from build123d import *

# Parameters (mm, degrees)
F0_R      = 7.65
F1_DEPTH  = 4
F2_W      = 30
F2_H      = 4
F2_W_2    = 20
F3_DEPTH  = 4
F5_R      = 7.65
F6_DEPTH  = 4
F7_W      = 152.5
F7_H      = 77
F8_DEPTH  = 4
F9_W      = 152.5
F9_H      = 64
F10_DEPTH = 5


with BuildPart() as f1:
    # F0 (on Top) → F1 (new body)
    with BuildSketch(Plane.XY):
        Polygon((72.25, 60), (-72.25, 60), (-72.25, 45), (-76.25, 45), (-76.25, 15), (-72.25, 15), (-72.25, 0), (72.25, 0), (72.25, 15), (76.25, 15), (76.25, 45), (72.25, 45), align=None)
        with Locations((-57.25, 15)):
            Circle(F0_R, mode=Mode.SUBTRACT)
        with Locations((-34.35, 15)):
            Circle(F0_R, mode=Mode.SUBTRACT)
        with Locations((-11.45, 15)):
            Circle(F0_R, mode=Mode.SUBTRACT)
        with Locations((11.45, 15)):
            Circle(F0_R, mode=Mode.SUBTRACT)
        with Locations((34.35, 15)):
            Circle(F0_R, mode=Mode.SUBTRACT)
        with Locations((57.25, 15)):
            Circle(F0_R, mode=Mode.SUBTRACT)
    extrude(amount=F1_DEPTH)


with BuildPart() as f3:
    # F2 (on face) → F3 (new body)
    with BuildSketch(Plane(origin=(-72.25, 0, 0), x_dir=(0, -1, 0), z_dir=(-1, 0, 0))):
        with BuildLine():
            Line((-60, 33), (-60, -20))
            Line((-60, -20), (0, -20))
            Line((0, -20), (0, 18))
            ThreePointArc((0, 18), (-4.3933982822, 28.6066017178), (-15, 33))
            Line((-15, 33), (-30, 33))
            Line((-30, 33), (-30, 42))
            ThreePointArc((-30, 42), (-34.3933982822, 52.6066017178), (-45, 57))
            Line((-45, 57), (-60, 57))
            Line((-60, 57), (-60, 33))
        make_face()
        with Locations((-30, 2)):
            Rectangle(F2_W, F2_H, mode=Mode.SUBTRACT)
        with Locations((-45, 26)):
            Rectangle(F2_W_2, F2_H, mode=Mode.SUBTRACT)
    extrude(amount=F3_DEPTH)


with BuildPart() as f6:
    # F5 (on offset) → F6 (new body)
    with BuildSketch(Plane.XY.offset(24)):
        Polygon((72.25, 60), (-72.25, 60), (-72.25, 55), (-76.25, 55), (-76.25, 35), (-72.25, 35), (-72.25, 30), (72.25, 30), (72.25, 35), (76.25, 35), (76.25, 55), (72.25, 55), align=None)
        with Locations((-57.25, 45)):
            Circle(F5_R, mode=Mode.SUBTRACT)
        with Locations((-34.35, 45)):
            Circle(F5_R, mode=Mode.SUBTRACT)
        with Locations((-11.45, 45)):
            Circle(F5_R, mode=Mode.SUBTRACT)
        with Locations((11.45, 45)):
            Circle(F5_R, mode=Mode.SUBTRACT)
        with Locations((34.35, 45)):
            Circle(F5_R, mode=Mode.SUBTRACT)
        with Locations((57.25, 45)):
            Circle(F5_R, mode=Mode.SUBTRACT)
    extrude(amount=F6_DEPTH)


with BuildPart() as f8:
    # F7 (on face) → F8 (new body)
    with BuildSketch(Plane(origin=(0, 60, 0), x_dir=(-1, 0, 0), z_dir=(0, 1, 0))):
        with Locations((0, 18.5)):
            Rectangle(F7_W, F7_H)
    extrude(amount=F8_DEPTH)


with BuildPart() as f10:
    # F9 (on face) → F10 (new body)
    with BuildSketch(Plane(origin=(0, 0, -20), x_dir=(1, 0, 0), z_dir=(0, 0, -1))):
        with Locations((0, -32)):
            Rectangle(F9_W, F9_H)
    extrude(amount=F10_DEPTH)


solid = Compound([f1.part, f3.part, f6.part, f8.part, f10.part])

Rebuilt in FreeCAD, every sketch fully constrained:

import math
import FreeCAD as App
import Part
import Sketcher
Q = App.Units.Quantity

doc = App.newDocument("Part")
body = doc.addObject("PartDesign::Body", "Body")

sketch1 = doc.addObject("Sketcher::SketchObject", "Sketch")
body.addObject(sketch1)
sketch1.AttachmentSupport = (doc.XY_Plane, [""])
sketch1.MapMode = "FlatFace"
sketch1.addGeometry([
    Part.LineSegment(App.Vector(72.2, 60, 0), App.Vector(-72.2, 60, 0)),
    Part.LineSegment(App.Vector(-72.2, 60, 0), App.Vector(-72.2, 45, 0)),
    Part.LineSegment(App.Vector(-72.2, 45, 0), App.Vector(-76.2, 45, 0)),
    Part.LineSegment(App.Vector(-76.2, 45, 0), App.Vector(-76.2, 15, 0)),
    Part.LineSegment(App.Vector(-76.2, 15, 0), App.Vector(-72.2, 15, 0)),
    Part.LineSegment(App.Vector(-72.2, 15, 0), App.Vector(-72.2, 0, 0)),
    Part.LineSegment(App.Vector(-72.2, 0, 0), App.Vector(72.2, 0, 0)),
    Part.LineSegment(App.Vector(72.2, 0, 0), App.Vector(72.2, 15, 0)),
    Part.LineSegment(App.Vector(72.2, 15, 0), App.Vector(76.2, 15, 0)),
    Part.LineSegment(App.Vector(76.2, 15, 0), App.Vector(76.2, 45, 0)),
    Part.LineSegment(App.Vector(76.2, 45, 0), App.Vector(72.2, 45, 0)),
    Part.LineSegment(App.Vector(72.2, 45, 0), App.Vector(72.2, 60, 0)),
    Part.Circle(App.Vector(-57.2, 15, 0), App.Vector(0, 0, 1), 7.7),
    Part.Circle(App.Vector(-34.4, 15, 0), App.Vector(0, 0, 1), 7.7),
    Part.Circle(App.Vector(-11.4, 15, 0), App.Vector(0, 0, 1), 7.7),
    Part.Circle(App.Vector(11.4, 15, 0), App.Vector(0, 0, 1), 7.7),
    Part.Circle(App.Vector(34.4, 15, 0), App.Vector(0, 0, 1), 7.7),
    Part.Circle(App.Vector(57.2, 15, 0), App.Vector(0, 0, 1), 7.7),
], False)
sketch1.addConstraint([
    Sketcher.Constraint("Coincident", 0, 2, 1, 1),
    Sketcher.Constraint("Coincident", 1, 2, 2, 1),
    Sketcher.Constraint("Coincident", 2, 2, 3, 1),
    Sketcher.Constraint("Coincident", 3, 2, 4, 1),
    Sketcher.Constraint("Coincident", 4, 2, 5, 1),
    Sketcher.Constraint("Coincident", 5, 2, 6, 1),
    Sketcher.Constraint("Coincident", 6, 2, 7, 1),
    Sketcher.Constraint("Coincident", 7, 2, 8, 1),
    Sketcher.Constraint("Coincident", 8, 2, 9, 1),
    Sketcher.Constraint("Coincident", 9, 2, 10, 1),
    Sketcher.Constraint("Coincident", 10, 2, 11, 1),
    Sketcher.Constraint("Coincident", 11, 2, 0, 1),
    Sketcher.Constraint("Horizontal", 0),
    Sketcher.Constraint("Vertical", 1),
    Sketcher.Constraint("Horizontal", 2),
    Sketcher.Constraint("Vertical", 3),
    Sketcher.Constraint("Horizontal", 4),
    Sketcher.Constraint("Vertical", 5),
    Sketcher.Constraint("Horizontal", 6),
    Sketcher.Constraint("Vertical", 7),
    Sketcher.Constraint("Horizontal", 8),
    Sketcher.Constraint("Vertical", 9),
    Sketcher.Constraint("Horizontal", 10),
    Sketcher.Constraint("Vertical", 11),
    Sketcher.Constraint("Equal", 12, 13),
    Sketcher.Constraint("Equal", 13, 14),
    Sketcher.Constraint("Equal", 14, 15),
    Sketcher.Constraint("Equal", 15, 16),
    Sketcher.Constraint("Equal", 16, 17),
    Sketcher.Constraint("Symmetric", 5, 2, 6, 2, -1, 1),
    Sketcher.Constraint("Symmetric", 14, 3, 15, 3, -2),
    Sketcher.Constraint("Symmetric", 13, 3, 16, 3, -2),
    Sketcher.Constraint("Symmetric", 12, 3, 17, 3, -2),
    Sketcher.Constraint("Symmetric", 3, 2, 8, 2, -2),
    Sketcher.Constraint("Symmetric", 1, 2, 10, 2, -2),
    Sketcher.Constraint("Horizontal", 12, 3, 13, 3),
    Sketcher.Constraint("Horizontal", 13, 3, 14, 3),
    Sketcher.Constraint("Horizontal", 17, 3, 3, 2),
    Sketcher.Constraint("Vertical", 1, 2, 4, 2),
    Sketcher.Constraint("Equal", 1, 5),
    Sketcher.Constraint("Diameter", 12, Q("15.3 mm")),
    Sketcher.Constraint("DistanceX", 2, 2, 2, 1, Q("4 mm")),
    Sketcher.Constraint("DistanceY", 1, 2, 1, 1, Q("15 mm")),
    Sketcher.Constraint("DistanceY", 3, 2, 3, 1, Q("30 mm")),
    Sketcher.Constraint("DistanceX", 0, 2, 0, 1, Q("144.5 mm")),
    Sketcher.Constraint("DistanceX", 0, 2, 12, 3, Q("15 mm")),
    Sketcher.Constraint("DistanceX", 12, 3, 13, 3, Q("22.9 mm")),
    Sketcher.Constraint("DistanceX", 13, 3, 14, 3, Q("22.9 mm")),
])
pad1 = doc.addObject("PartDesign::Pad", "Pad")
body.addObject(pad1)
pad1.Profile = sketch1
pad1.Length = 4
body2 = doc.addObject("PartDesign::Body", "Body001")

sketch2 = doc.addObject("Sketcher::SketchObject", "Sketch001")
body2.addObject(sketch2)
sketch2.AttachmentSupport = (doc.getObject("YZ_Plane001"), [""])
sketch2.MapMode = "FlatFace"
sketch2.AttachmentOffset = App.Placement(App.Vector(0, 0, -72.25), App.Rotation())
sketch2.addGeometry([
    Part.LineSegment(App.Vector(60, -20, 0), App.Vector(0, -20, 0)),
    Part.LineSegment(App.Vector(0, -20, 0), App.Vector(0, 18, 0)),
    Part.ArcOfCircle(Part.Circle(App.Vector(15, 18, 0), App.Vector(0, 0, 1), 15), math.radians(90), math.radians(180)),
    Part.LineSegment(App.Vector(15, 33, 0), App.Vector(30, 33, 0)),
    Part.LineSegment(App.Vector(30, 33, 0), App.Vector(30, 42, 0)),
    Part.ArcOfCircle(Part.Circle(App.Vector(45, 42, 0), App.Vector(0, 0, 1), 15), math.radians(90), math.radians(180)),
    Part.LineSegment(App.Vector(45, 57, 0), App.Vector(60, 57, 0)),
    Part.LineSegment(App.Vector(60, 57, 0), App.Vector(60, -20, 0)),
    Part.LineSegment(App.Vector(15, 0, 0), App.Vector(45, 0, 0)),
    Part.LineSegment(App.Vector(45, 0, 0), App.Vector(45, 4, 0)),
    Part.LineSegment(App.Vector(45, 4, 0), App.Vector(15, 4, 0)),
    Part.LineSegment(App.Vector(15, 4, 0), App.Vector(15, 0, 0)),
    Part.LineSegment(App.Vector(35, 24, 0), App.Vector(55, 24, 0)),
    Part.LineSegment(App.Vector(55, 24, 0), App.Vector(55, 28, 0)),
    Part.LineSegment(App.Vector(55, 28, 0), App.Vector(35, 28, 0)),
    Part.LineSegment(App.Vector(35, 28, 0), App.Vector(35, 24, 0)),
], False)
sketch2.addConstraint([
    Sketcher.Constraint("Coincident", 0, 2, 1, 1),
    Sketcher.Constraint("Tangent", 1, 2, 2, 2),
    Sketcher.Constraint("Tangent", 2, 1, 3, 1),
    Sketcher.Constraint("Coincident", 3, 2, 4, 1),
    Sketcher.Constraint("Tangent", 4, 2, 5, 2),
    Sketcher.Constraint("Tangent", 5, 1, 6, 1),
    Sketcher.Constraint("Coincident", 6, 2, 7, 1),
    Sketcher.Constraint("Coincident", 7, 2, 0, 1),
    Sketcher.Constraint("Coincident", 8, 2, 9, 1),
    Sketcher.Constraint("Coincident", 9, 2, 10, 1),
    Sketcher.Constraint("Coincident", 10, 2, 11, 1),
    Sketcher.Constraint("Coincident", 11, 2, 8, 1),
    Sketcher.Constraint("Coincident", 12, 2, 13, 1),
    Sketcher.Constraint("Coincident", 13, 2, 14, 1),
    Sketcher.Constraint("Coincident", 14, 2, 15, 1),
    Sketcher.Constraint("Coincident", 15, 2, 12, 1),
    Sketcher.Constraint("Horizontal", 0),
    Sketcher.Constraint("Vertical", 1),
    Sketcher.Constraint("Horizontal", 3),
    Sketcher.Constraint("Vertical", 4),
    Sketcher.Constraint("Horizontal", 6),
    Sketcher.Constraint("Vertical", 7),
    Sketcher.Constraint("Horizontal", 8),
    Sketcher.Constraint("Vertical", 9),
    Sketcher.Constraint("Horizontal", 10),
    Sketcher.Constraint("Vertical", 11),
    Sketcher.Constraint("Horizontal", 12),
    Sketcher.Constraint("Vertical", 13),
    Sketcher.Constraint("Horizontal", 14),
    Sketcher.Constraint("Vertical", 15),
    Sketcher.Constraint("Equal", 2, 5),
    Sketcher.Constraint("PointOnObject", 0, 2, -2),
    Sketcher.Constraint("PointOnObject", 8, 2, -1),
    Sketcher.Constraint("Vertical", 5, 1, 8, 2),
    Sketcher.Constraint("Vertical", 2, 1, 10, 2),
    Sketcher.Constraint("Equal", 3, 6),
    Sketcher.Constraint("Equal", 11, 13),
    Sketcher.Constraint("Radius", 2, Q("15 mm")),
    Sketcher.Constraint("DistanceX", 0, 2, 0, 1, Q("60 mm")),
    Sketcher.Constraint("DistanceX", 12, 1, 12, 2, Q("20 mm")),
    Sketcher.Constraint("DistanceY", 1, 1, 1, 2, Q("38 mm")),
    Sketcher.Constraint("DistanceY", 4, 1, 4, 2, Q("9 mm")),
    Sketcher.Constraint("DistanceY", 9, 1, 9, 2, Q("4 mm")),
    Sketcher.Constraint("DistanceY", -1, 1, 2, 3, Q("18 mm")),
    Sketcher.Constraint("DistanceX", -1, 1, 12, 2, Q("55 mm")),
    Sketcher.Constraint("DistanceY", -1, 1, 12, 2, Q("24 mm")),
])
pad2 = doc.addObject("PartDesign::Pad", "Pad001")
body2.addObject(pad2)
pad2.Profile = sketch2
pad2.Length = 4
pad2.Reversed = True
body3 = doc.addObject("PartDesign::Body", "Body002")

sketch3 = doc.addObject("Sketcher::SketchObject", "Sketch002")
body3.addObject(sketch3)
sketch3.AttachmentSupport = (doc.getObject("XY_Plane002"), [""])
sketch3.MapMode = "FlatFace"
sketch3.AttachmentOffset = App.Placement(App.Vector(0, 0, 24), App.Rotation())
sketch3.addGeometry([
    Part.LineSegment(App.Vector(72.2, 60, 0), App.Vector(-72.2, 60, 0)),
    Part.LineSegment(App.Vector(-72.2, 60, 0), App.Vector(-72.2, 55, 0)),
    Part.LineSegment(App.Vector(-72.2, 55, 0), App.Vector(-76.2, 55, 0)),
    Part.LineSegment(App.Vector(-76.2, 55, 0), App.Vector(-76.2, 35, 0)),
    Part.LineSegment(App.Vector(-76.2, 35, 0), App.Vector(-72.2, 35, 0)),
    Part.LineSegment(App.Vector(-72.2, 35, 0), App.Vector(-72.2, 30, 0)),
    Part.LineSegment(App.Vector(-72.2, 30, 0), App.Vector(72.2, 30, 0)),
    Part.LineSegment(App.Vector(72.2, 30, 0), App.Vector(72.2, 35, 0)),
    Part.LineSegment(App.Vector(72.2, 35, 0), App.Vector(76.2, 35, 0)),
    Part.LineSegment(App.Vector(76.2, 35, 0), App.Vector(76.2, 55, 0)),
    Part.LineSegment(App.Vector(76.2, 55, 0), App.Vector(72.2, 55, 0)),
    Part.LineSegment(App.Vector(72.2, 55, 0), App.Vector(72.2, 60, 0)),
    Part.Circle(App.Vector(-57.2, 45, 0), App.Vector(0, 0, 1), 7.7),
    Part.Circle(App.Vector(-34.4, 45, 0), App.Vector(0, 0, 1), 7.7),
    Part.Circle(App.Vector(-11.4, 45, 0), App.Vector(0, 0, 1), 7.7),
    Part.Circle(App.Vector(11.4, 45, 0), App.Vector(0, 0, 1), 7.7),
    Part.Circle(App.Vector(34.4, 45, 0), App.Vector(0, 0, 1), 7.7),
    Part.Circle(App.Vector(57.2, 45, 0), App.Vector(0, 0, 1), 7.7),
], False)
sketch3.addConstraint([
    Sketcher.Constraint("Coincident", 0, 2, 1, 1),
    Sketcher.Constraint("Coincident", 1, 2, 2, 1),
    Sketcher.Constraint("Coincident", 2, 2, 3, 1),
    Sketcher.Constraint("Coincident", 3, 2, 4, 1),
    Sketcher.Constraint("Coincident", 4, 2, 5, 1),
    Sketcher.Constraint("Coincident", 5, 2, 6, 1),
    Sketcher.Constraint("Coincident", 6, 2, 7, 1),
    Sketcher.Constraint("Coincident", 7, 2, 8, 1),
    Sketcher.Constraint("Coincident", 8, 2, 9, 1),
    Sketcher.Constraint("Coincident", 9, 2, 10, 1),
    Sketcher.Constraint("Coincident", 10, 2, 11, 1),
    Sketcher.Constraint("Coincident", 11, 2, 0, 1),
    Sketcher.Constraint("Horizontal", 0),
    Sketcher.Constraint("Vertical", 1),
    Sketcher.Constraint("Horizontal", 2),
    Sketcher.Constraint("Vertical", 3),
    Sketcher.Constraint("Horizontal", 4),
    Sketcher.Constraint("Vertical", 5),
    Sketcher.Constraint("Horizontal", 6),
    Sketcher.Constraint("Vertical", 7),
    Sketcher.Constraint("Horizontal", 8),
    Sketcher.Constraint("Vertical", 9),
    Sketcher.Constraint("Horizontal", 10),
    Sketcher.Constraint("Vertical", 11),
    Sketcher.Constraint("Equal", 12, 13),
    Sketcher.Constraint("Equal", 13, 14),
    Sketcher.Constraint("Equal", 14, 15),
    Sketcher.Constraint("Equal", 15, 16),
    Sketcher.Constraint("Equal", 16, 17),
    Sketcher.Constraint("Symmetric", 14, 3, 15, 3, -2),
    Sketcher.Constraint("Symmetric", 13, 3, 16, 3, -2),
    Sketcher.Constraint("Symmetric", 12, 3, 17, 3, -2),
    Sketcher.Constraint("Symmetric", 4, 2, 7, 2, -2),
    Sketcher.Constraint("Symmetric", 2, 2, 9, 2, -2),
    Sketcher.Constraint("Horizontal", 12, 3, 13, 3),
    Sketcher.Constraint("Horizontal", 13, 3, 14, 3),
    Sketcher.Constraint("Vertical", 1, 2, 4, 2),
    Sketcher.Constraint("Vertical", 7, 2, 10, 2),
    Sketcher.Constraint("Equal", 1, 5),
    Sketcher.Constraint("Diameter", 12, Q("15.3 mm")),
    Sketcher.Constraint("DistanceX", 2, 2, 2, 1, Q("4 mm")),
    Sketcher.Constraint("DistanceY", 1, 2, 1, 1, Q("5 mm")),
    Sketcher.Constraint("DistanceY", 3, 2, 3, 1, Q("20 mm")),
    Sketcher.Constraint("DistanceX", 0, 2, 0, 1, Q("144.5 mm")),
    Sketcher.Constraint("DistanceY", -1, 1, 12, 3, Q("45 mm")),
    Sketcher.Constraint("DistanceY", -1, 1, 0, 2, Q("60 mm")),
    Sketcher.Constraint("DistanceX", 0, 2, 12, 3, Q("15 mm")),
    Sketcher.Constraint("DistanceX", 12, 3, 13, 3, Q("22.9 mm")),
    Sketcher.Constraint("DistanceX", 13, 3, 14, 3, Q("22.9 mm")),
])
pad3 = doc.addObject("PartDesign::Pad", "Pad002")
body3.addObject(pad3)
pad3.Profile = sketch3
pad3.Length = 4
body4 = doc.addObject("PartDesign::Body", "Body003")

sketch4 = doc.addObject("Sketcher::SketchObject", "Sketch003")
body4.addObject(sketch4)
sketch4.AttachmentSupport = (doc.getObject("XZ_Plane003"), [""])
sketch4.MapMode = "FlatFace"
sketch4.AttachmentOffset = App.Placement(App.Vector(0, 0, -60), App.Rotation())
sketch4.addGeometry([
    Part.LineSegment(App.Vector(76, 57, 0), App.Vector(76, -20, 0)),
    Part.LineSegment(App.Vector(76, -20, 0), App.Vector(-76, -20, 0)),
    Part.LineSegment(App.Vector(-76, -20, 0), App.Vector(-76, 57, 0)),
    Part.LineSegment(App.Vector(-76, 57, 0), App.Vector(76, 57, 0)),
], False)
sketch4.addConstraint([
    Sketcher.Constraint("Coincident", 0, 2, 1, 1),
    Sketcher.Constraint("Coincident", 1, 2, 2, 1),
    Sketcher.Constraint("Coincident", 2, 2, 3, 1),
    Sketcher.Constraint("Coincident", 3, 2, 0, 1),
    Sketcher.Constraint("Vertical", 0),
    Sketcher.Constraint("Horizontal", 1),
    Sketcher.Constraint("Vertical", 2),
    Sketcher.Constraint("Horizontal", 3),
    Sketcher.Constraint("DistanceY", 0, 2, 0, 1, Q("77 mm")),
    Sketcher.Constraint("DistanceX", 1, 2, 1, 1, Q("152.5 mm")),
    Sketcher.Constraint("DistanceY", 0, 2, -1, 1, Q("20 mm")),
    Sketcher.Constraint("DistanceX", -1, 1, 0, 2, Q("76.25 mm")),
])
pad4 = doc.addObject("PartDesign::Pad", "Pad003")
body4.addObject(pad4)
pad4.Profile = sketch4
pad4.Length = 4
pad4.Reversed = True
body5 = doc.addObject("PartDesign::Body", "Body004")

sketch5 = doc.addObject("Sketcher::SketchObject", "Sketch004")
body5.addObject(sketch5)
sketch5.AttachmentSupport = (doc.getObject("XY_Plane004"), [""])
sketch5.MapMode = "FlatFace"
sketch5.AttachmentOffset = App.Placement(App.Vector(0, 0, -20), App.Rotation())
sketch5.addGeometry([
    Part.LineSegment(App.Vector(-76, 0, 0), App.Vector(-76, 64, 0)),
    Part.LineSegment(App.Vector(-76, 64, 0), App.Vector(76, 64, 0)),
    Part.LineSegment(App.Vector(76, 64, 0), App.Vector(76, 0, 0)),
    Part.LineSegment(App.Vector(76, 0, 0), App.Vector(-76, 0, 0)),
], False)
sketch5.addConstraint([
    Sketcher.Constraint("Coincident", 0, 2, 1, 1),
    Sketcher.Constraint("Coincident", 1, 2, 2, 1),
    Sketcher.Constraint("Coincident", 2, 2, 3, 1),
    Sketcher.Constraint("Coincident", 3, 2, 0, 1),
    Sketcher.Constraint("Vertical", 0),
    Sketcher.Constraint("Horizontal", 1),
    Sketcher.Constraint("Vertical", 2),
    Sketcher.Constraint("Horizontal", 3),
    Sketcher.Constraint("Symmetric", 2, 2, 3, 2, -1, 1),
    Sketcher.Constraint("DistanceY", 0, 1, 0, 2, Q("64 mm")),
    Sketcher.Constraint("DistanceX", 1, 1, 1, 2, Q("152.5 mm")),
])
pad5 = doc.addObject("PartDesign::Pad", "Pad004")
body5.addObject(pad5)
pad5.Profile = sketch5
pad5.Length = 5
pad5.Reversed = True

doc.recompute()
